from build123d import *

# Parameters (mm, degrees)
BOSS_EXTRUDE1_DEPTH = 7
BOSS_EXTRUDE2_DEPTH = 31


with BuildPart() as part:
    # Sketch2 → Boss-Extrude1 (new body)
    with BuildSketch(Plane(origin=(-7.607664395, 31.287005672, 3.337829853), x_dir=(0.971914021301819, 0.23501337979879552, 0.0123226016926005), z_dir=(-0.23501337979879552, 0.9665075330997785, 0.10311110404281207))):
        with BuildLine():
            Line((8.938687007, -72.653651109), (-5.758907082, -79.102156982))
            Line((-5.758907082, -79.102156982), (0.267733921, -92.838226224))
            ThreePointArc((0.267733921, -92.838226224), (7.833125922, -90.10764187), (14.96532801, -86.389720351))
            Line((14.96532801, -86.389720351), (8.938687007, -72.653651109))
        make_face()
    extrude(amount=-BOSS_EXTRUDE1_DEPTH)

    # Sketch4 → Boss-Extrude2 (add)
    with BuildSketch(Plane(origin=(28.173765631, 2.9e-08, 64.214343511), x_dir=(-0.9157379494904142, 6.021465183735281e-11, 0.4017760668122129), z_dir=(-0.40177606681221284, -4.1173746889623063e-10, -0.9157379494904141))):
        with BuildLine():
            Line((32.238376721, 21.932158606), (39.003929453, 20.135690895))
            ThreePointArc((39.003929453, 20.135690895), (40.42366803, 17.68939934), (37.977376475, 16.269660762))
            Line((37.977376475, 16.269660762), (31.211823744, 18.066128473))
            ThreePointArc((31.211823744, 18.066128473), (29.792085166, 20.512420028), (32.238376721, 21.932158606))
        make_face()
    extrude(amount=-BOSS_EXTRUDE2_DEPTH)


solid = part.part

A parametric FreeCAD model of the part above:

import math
import FreeCAD as App
import Part
import Sketcher
from FreeCAD import Vector

doc = App.newDocument("Part")
params = doc.addObject("Spreadsheet::Sheet", "Params")
for row, (alias, value) in enumerate([
    ("sketch1_radius", "60 mm"),
    ("sketch1_length", "15 mm"),
    ("sketch1_length2", "16.05 mm"),
    ("pad1_length", "7 mm"),
    ("sketch2_radius", "2 mm"),
    ("sketch2_length", "7 mm"),
    ("pad2_length", "31 mm"),
], start=1):
    params.set(f"A{row}", alias)
    params.set(f"B{row}", "=" + value)
    params.setAlias(f"B{row}", alias)

body = doc.addObject("PartDesign::Body", "Body")

sketch1 = body.newObject("Sketcher::SketchObject", "Sketch")
sketch1.Placement = App.Placement(Vector(-7.607664, 31.287006, 3.33783), App.Rotation(Vector(0.971914021, 0.23501338, 0.012322602), Vector(-0.012322601, 0.103111104, -0.994593512), Vector(-0.23501338, 0.966507533, 0.103111104), "ZXY"))
sketch1.addGeometry([
    Part.LineSegment(Vector(8.938687, -72.653651, 0), Vector(-5.758907, -79.102157, 0)),
    Part.LineSegment(Vector(-5.758907, -79.102157, 0), Vector(0.267734, -92.838226, 0)),
    Part.ArcOfCircle(Part.Circle(Vector(-16.273438, -35.163365, 0), Vector(0, 0, 1), 60), math.radians(-73.997089), math.radians(-58.624399)),
    Part.LineSegment(Vector(14.965328, -86.38972, 0), Vector(8.938687, -72.653651, 0)),
], False)
sketch1.addConstraint([
    Sketcher.Constraint("Coincident", 0, 2, 1, 1),
    Sketcher.Constraint("Coincident", 1, 2, 2, 1),
    Sketcher.Constraint("Coincident", 2, 2, 3, 1),
    Sketcher.Constraint("Coincident", 3, 2, 0, 1),
    Sketcher.Constraint("Perpendicular", 0, 1),
    Sketcher.Constraint("Parallel", 1, 3),
    Sketcher.Constraint("Equal", 1, 3),
    Sketcher.Constraint("Radius", 2, 60.0),
    Sketcher.Constraint("Distance", 1, 15.0),
    Sketcher.Constraint("Distance", 0, 16.05),
    Sketcher.Constraint("DistanceX", 2, 3, -1, 1, 16.273438),
    Sketcher.Constraint("DistanceX", -1, 1, 2, 2, 14.965328),
    Sketcher.Constraint("DistanceY", 2, 2, -1, 1, 86.38972),
])
sketch1.setExpression("Constraints[7]", "Params.sketch1_radius")
sketch1.setExpression("Constraints[8]", "Params.sketch1_length")
sketch1.setExpression("Constraints[9]", "Params.sketch1_length2")
pad1 = body.newObject("PartDesign::Pad", "Pad")
pad1.Profile = sketch1
pad1.setExpression("Length", "Params.pad1_length")
pad1.Reversed = True

sketch2 = body.newObject("Sketcher::SketchObject", "Sketch001")
sketch2.Placement = App.Placement(Vector(28.173766, 0, 64.214344), App.Rotation(Vector(-0.915737949, 0, 0.401776067), Vector(0, 0.999999999, 0), Vector(-0.401776067, 0, -0.915737949), "ZXY"))
sketch2.addGeometry([
    Part.LineSegment(Vector(39.003929, 20.135691, 0), Vector(32.238377, 21.932159, 0)),
    Part.ArcOfCircle(Part.Circle(Vector(31.7251, 19.999144, 0), Vector(0, 0, 1), 2), math.radians(75.129319), math.radians(255.129319)),
    Part.LineSegment(Vector(31.211824, 18.066128, 0), Vector(37.977376, 16.269661, 0)),
    Part.ArcOfCircle(Part.Circle(Vector(38.490653, 18.202676, 0), Vector(0, 0, 1), 2), math.radians(-104.870681), math.radians(75.129319)),
], False)
sketch2.addConstraint([
    Sketcher.Constraint("Tangent", 0, 2, 1, 1),
    Sketcher.Constraint("Tangent", 1, 2, 2, 1),
    Sketcher.Constraint("Tangent", 2, 2, 3, 1),
    Sketcher.Constraint("Tangent", 3, 2, 0, 1),
    Sketcher.Constraint("Equal", 1, 3),
    Sketcher.Constraint("Radius", 1, 2.0),
    Sketcher.Constraint("Distance", 0, 7.0),
    Sketcher.Constraint("DistanceX", 0, 2, 2, 2, 5.739),
    Sketcher.Constraint("DistanceX", -1, 1, 1, 3, 31.7251),
    Sketcher.Constraint("DistanceY", -1, 1, 0, 2, 21.932159),
])
sketch2.setExpression("Constraints[5]", "Params.sketch2_radius")
sketch2.setExpression("Constraints[6]", "Params.sketch2_length")
pad2 = body.newObject("PartDesign::Pad", "Pad001")
pad2.Profile = sketch2
pad2.setExpression("Length", "Params.pad2_length")
pad2.Reversed = True

doc.recompute()
